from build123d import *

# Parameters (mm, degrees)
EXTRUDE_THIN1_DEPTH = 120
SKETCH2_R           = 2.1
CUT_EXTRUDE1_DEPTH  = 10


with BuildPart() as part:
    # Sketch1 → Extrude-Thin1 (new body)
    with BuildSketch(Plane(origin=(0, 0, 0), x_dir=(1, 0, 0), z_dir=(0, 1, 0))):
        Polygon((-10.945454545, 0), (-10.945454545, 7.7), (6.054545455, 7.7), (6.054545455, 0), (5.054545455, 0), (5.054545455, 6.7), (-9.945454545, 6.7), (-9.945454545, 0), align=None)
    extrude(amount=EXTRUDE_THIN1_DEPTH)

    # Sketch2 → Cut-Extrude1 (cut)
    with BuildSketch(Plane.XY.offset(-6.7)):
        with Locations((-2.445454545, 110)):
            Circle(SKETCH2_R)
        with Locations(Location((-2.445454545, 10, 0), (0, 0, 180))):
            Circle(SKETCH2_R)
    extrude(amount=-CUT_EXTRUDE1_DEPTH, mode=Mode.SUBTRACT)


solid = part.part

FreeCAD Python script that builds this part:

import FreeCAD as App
import Part
import Sketcher


def add_polygon(sketch, points):
    """Adds a closed chain of lines whose ends are joined by coincident constraints."""
    first, n = sketch.GeometryCount, len(points)
    for a, b in zip(points, points[1:] + points[:1]):
        sketch.addGeometry(Part.LineSegment(App.Vector(*a, 0), App.Vector(*b, 0)), False)
    for i in range(n):
        sketch.addConstraint(Sketcher.Constraint("Coincident", first + i, 2, first + (i + 1) % n, 1))

doc = App.newDocument("Part")
body = doc.addObject("PartDesign::Body", "Body")

# Sketch on XZ plane
sketch1 = body.newObject("Sketcher::SketchObject", "Sketch")
sketch1.AttachmentSupport = (doc.getObject("XZ_Plane"), [""])
sketch1.MapMode = "FlatFace"
add_polygon(sketch1, [(-10.9, -7.7), (-10.9, 0), (-9.9, 0), (-9.9, -6.7), (5.1, -6.7), (5.1, 0), (6.1, 0), (6.1, -7.7)])  # lines 0-7
sketch1.addConstraint([
    Sketcher.Constraint("Vertical", 0),
    Sketcher.Constraint("Horizontal", 1),
    Sketcher.Constraint("Vertical", 2),
    Sketcher.Constraint("Horizontal", 3),
    Sketcher.Constraint("Vertical", 4),
    Sketcher.Constraint("Horizontal", 5),
    Sketcher.Constraint("Vertical", 6),
    Sketcher.Constraint("Horizontal", 7),
    Sketcher.Constraint("PointOnObject", 0, 2, -1),
    Sketcher.Constraint("PointOnObject", 4, 2, -1),
    Sketcher.Constraint("Equal", 1, 5),
    Sketcher.Constraint("DistanceX", 1, 1, 1, 2, 1.0),
    Sketcher.Constraint("DistanceX", 3, 1, 3, 2, 15.0),
    Sketcher.Constraint("DistanceY", 0, 1, 0, 2, 7.7),
    Sketcher.Constraint("DistanceY", 2, 2, 2, 1, 6.7),
    Sketcher.Constraint("DistanceX", 0, 2, -1, 1, 10.945455),
])
pad1 = body.newObject("PartDesign::Pad", "Pad")
pad1.Profile = sketch1
pad1.Length = 120
pad1.Reversed = True

# Sketch on XY plane
sketch2 = body.newObject("Sketcher::SketchObject", "Sketch001")
sketch2.AttachmentSupport = (doc.getObject("XY_Plane"), [""])
sketch2.MapMode = "FlatFace"
sketch2.AttachmentOffset = App.Placement(App.Vector(0, 0, -6.7), App.Rotation())
sketch2.addGeometry([
    Part.Circle(App.Vector(-2.4, 110, 0), App.Vector(0, 0, 1), 2.1),
    Part.Circle(App.Vector(-2.4, 10, 0), App.Vector(0, 0, 1), 2.1),
], False)
sketch2.addConstraint([
    Sketcher.Constraint("Equal", 0, 1),
    Sketcher.Constraint("Vertical", 0, 3, 1, 3),
    Sketcher.Constraint("Diameter", 0, 4.2),
    Sketcher.Constraint("DistanceY", -1, 1, 0, 3, 110.0),
    Sketcher.Constraint("DistanceY", -1, 1, 1, 3, 10.0),
    Sketcher.Constraint("DistanceX", 0, 3, -1, 1, 2.445455),
])
pocket1 = body.newObject("PartDesign::Pocket", "Pocket")
pocket1.Profile = sketch2
pocket1.Length = 10

doc.recompute()
